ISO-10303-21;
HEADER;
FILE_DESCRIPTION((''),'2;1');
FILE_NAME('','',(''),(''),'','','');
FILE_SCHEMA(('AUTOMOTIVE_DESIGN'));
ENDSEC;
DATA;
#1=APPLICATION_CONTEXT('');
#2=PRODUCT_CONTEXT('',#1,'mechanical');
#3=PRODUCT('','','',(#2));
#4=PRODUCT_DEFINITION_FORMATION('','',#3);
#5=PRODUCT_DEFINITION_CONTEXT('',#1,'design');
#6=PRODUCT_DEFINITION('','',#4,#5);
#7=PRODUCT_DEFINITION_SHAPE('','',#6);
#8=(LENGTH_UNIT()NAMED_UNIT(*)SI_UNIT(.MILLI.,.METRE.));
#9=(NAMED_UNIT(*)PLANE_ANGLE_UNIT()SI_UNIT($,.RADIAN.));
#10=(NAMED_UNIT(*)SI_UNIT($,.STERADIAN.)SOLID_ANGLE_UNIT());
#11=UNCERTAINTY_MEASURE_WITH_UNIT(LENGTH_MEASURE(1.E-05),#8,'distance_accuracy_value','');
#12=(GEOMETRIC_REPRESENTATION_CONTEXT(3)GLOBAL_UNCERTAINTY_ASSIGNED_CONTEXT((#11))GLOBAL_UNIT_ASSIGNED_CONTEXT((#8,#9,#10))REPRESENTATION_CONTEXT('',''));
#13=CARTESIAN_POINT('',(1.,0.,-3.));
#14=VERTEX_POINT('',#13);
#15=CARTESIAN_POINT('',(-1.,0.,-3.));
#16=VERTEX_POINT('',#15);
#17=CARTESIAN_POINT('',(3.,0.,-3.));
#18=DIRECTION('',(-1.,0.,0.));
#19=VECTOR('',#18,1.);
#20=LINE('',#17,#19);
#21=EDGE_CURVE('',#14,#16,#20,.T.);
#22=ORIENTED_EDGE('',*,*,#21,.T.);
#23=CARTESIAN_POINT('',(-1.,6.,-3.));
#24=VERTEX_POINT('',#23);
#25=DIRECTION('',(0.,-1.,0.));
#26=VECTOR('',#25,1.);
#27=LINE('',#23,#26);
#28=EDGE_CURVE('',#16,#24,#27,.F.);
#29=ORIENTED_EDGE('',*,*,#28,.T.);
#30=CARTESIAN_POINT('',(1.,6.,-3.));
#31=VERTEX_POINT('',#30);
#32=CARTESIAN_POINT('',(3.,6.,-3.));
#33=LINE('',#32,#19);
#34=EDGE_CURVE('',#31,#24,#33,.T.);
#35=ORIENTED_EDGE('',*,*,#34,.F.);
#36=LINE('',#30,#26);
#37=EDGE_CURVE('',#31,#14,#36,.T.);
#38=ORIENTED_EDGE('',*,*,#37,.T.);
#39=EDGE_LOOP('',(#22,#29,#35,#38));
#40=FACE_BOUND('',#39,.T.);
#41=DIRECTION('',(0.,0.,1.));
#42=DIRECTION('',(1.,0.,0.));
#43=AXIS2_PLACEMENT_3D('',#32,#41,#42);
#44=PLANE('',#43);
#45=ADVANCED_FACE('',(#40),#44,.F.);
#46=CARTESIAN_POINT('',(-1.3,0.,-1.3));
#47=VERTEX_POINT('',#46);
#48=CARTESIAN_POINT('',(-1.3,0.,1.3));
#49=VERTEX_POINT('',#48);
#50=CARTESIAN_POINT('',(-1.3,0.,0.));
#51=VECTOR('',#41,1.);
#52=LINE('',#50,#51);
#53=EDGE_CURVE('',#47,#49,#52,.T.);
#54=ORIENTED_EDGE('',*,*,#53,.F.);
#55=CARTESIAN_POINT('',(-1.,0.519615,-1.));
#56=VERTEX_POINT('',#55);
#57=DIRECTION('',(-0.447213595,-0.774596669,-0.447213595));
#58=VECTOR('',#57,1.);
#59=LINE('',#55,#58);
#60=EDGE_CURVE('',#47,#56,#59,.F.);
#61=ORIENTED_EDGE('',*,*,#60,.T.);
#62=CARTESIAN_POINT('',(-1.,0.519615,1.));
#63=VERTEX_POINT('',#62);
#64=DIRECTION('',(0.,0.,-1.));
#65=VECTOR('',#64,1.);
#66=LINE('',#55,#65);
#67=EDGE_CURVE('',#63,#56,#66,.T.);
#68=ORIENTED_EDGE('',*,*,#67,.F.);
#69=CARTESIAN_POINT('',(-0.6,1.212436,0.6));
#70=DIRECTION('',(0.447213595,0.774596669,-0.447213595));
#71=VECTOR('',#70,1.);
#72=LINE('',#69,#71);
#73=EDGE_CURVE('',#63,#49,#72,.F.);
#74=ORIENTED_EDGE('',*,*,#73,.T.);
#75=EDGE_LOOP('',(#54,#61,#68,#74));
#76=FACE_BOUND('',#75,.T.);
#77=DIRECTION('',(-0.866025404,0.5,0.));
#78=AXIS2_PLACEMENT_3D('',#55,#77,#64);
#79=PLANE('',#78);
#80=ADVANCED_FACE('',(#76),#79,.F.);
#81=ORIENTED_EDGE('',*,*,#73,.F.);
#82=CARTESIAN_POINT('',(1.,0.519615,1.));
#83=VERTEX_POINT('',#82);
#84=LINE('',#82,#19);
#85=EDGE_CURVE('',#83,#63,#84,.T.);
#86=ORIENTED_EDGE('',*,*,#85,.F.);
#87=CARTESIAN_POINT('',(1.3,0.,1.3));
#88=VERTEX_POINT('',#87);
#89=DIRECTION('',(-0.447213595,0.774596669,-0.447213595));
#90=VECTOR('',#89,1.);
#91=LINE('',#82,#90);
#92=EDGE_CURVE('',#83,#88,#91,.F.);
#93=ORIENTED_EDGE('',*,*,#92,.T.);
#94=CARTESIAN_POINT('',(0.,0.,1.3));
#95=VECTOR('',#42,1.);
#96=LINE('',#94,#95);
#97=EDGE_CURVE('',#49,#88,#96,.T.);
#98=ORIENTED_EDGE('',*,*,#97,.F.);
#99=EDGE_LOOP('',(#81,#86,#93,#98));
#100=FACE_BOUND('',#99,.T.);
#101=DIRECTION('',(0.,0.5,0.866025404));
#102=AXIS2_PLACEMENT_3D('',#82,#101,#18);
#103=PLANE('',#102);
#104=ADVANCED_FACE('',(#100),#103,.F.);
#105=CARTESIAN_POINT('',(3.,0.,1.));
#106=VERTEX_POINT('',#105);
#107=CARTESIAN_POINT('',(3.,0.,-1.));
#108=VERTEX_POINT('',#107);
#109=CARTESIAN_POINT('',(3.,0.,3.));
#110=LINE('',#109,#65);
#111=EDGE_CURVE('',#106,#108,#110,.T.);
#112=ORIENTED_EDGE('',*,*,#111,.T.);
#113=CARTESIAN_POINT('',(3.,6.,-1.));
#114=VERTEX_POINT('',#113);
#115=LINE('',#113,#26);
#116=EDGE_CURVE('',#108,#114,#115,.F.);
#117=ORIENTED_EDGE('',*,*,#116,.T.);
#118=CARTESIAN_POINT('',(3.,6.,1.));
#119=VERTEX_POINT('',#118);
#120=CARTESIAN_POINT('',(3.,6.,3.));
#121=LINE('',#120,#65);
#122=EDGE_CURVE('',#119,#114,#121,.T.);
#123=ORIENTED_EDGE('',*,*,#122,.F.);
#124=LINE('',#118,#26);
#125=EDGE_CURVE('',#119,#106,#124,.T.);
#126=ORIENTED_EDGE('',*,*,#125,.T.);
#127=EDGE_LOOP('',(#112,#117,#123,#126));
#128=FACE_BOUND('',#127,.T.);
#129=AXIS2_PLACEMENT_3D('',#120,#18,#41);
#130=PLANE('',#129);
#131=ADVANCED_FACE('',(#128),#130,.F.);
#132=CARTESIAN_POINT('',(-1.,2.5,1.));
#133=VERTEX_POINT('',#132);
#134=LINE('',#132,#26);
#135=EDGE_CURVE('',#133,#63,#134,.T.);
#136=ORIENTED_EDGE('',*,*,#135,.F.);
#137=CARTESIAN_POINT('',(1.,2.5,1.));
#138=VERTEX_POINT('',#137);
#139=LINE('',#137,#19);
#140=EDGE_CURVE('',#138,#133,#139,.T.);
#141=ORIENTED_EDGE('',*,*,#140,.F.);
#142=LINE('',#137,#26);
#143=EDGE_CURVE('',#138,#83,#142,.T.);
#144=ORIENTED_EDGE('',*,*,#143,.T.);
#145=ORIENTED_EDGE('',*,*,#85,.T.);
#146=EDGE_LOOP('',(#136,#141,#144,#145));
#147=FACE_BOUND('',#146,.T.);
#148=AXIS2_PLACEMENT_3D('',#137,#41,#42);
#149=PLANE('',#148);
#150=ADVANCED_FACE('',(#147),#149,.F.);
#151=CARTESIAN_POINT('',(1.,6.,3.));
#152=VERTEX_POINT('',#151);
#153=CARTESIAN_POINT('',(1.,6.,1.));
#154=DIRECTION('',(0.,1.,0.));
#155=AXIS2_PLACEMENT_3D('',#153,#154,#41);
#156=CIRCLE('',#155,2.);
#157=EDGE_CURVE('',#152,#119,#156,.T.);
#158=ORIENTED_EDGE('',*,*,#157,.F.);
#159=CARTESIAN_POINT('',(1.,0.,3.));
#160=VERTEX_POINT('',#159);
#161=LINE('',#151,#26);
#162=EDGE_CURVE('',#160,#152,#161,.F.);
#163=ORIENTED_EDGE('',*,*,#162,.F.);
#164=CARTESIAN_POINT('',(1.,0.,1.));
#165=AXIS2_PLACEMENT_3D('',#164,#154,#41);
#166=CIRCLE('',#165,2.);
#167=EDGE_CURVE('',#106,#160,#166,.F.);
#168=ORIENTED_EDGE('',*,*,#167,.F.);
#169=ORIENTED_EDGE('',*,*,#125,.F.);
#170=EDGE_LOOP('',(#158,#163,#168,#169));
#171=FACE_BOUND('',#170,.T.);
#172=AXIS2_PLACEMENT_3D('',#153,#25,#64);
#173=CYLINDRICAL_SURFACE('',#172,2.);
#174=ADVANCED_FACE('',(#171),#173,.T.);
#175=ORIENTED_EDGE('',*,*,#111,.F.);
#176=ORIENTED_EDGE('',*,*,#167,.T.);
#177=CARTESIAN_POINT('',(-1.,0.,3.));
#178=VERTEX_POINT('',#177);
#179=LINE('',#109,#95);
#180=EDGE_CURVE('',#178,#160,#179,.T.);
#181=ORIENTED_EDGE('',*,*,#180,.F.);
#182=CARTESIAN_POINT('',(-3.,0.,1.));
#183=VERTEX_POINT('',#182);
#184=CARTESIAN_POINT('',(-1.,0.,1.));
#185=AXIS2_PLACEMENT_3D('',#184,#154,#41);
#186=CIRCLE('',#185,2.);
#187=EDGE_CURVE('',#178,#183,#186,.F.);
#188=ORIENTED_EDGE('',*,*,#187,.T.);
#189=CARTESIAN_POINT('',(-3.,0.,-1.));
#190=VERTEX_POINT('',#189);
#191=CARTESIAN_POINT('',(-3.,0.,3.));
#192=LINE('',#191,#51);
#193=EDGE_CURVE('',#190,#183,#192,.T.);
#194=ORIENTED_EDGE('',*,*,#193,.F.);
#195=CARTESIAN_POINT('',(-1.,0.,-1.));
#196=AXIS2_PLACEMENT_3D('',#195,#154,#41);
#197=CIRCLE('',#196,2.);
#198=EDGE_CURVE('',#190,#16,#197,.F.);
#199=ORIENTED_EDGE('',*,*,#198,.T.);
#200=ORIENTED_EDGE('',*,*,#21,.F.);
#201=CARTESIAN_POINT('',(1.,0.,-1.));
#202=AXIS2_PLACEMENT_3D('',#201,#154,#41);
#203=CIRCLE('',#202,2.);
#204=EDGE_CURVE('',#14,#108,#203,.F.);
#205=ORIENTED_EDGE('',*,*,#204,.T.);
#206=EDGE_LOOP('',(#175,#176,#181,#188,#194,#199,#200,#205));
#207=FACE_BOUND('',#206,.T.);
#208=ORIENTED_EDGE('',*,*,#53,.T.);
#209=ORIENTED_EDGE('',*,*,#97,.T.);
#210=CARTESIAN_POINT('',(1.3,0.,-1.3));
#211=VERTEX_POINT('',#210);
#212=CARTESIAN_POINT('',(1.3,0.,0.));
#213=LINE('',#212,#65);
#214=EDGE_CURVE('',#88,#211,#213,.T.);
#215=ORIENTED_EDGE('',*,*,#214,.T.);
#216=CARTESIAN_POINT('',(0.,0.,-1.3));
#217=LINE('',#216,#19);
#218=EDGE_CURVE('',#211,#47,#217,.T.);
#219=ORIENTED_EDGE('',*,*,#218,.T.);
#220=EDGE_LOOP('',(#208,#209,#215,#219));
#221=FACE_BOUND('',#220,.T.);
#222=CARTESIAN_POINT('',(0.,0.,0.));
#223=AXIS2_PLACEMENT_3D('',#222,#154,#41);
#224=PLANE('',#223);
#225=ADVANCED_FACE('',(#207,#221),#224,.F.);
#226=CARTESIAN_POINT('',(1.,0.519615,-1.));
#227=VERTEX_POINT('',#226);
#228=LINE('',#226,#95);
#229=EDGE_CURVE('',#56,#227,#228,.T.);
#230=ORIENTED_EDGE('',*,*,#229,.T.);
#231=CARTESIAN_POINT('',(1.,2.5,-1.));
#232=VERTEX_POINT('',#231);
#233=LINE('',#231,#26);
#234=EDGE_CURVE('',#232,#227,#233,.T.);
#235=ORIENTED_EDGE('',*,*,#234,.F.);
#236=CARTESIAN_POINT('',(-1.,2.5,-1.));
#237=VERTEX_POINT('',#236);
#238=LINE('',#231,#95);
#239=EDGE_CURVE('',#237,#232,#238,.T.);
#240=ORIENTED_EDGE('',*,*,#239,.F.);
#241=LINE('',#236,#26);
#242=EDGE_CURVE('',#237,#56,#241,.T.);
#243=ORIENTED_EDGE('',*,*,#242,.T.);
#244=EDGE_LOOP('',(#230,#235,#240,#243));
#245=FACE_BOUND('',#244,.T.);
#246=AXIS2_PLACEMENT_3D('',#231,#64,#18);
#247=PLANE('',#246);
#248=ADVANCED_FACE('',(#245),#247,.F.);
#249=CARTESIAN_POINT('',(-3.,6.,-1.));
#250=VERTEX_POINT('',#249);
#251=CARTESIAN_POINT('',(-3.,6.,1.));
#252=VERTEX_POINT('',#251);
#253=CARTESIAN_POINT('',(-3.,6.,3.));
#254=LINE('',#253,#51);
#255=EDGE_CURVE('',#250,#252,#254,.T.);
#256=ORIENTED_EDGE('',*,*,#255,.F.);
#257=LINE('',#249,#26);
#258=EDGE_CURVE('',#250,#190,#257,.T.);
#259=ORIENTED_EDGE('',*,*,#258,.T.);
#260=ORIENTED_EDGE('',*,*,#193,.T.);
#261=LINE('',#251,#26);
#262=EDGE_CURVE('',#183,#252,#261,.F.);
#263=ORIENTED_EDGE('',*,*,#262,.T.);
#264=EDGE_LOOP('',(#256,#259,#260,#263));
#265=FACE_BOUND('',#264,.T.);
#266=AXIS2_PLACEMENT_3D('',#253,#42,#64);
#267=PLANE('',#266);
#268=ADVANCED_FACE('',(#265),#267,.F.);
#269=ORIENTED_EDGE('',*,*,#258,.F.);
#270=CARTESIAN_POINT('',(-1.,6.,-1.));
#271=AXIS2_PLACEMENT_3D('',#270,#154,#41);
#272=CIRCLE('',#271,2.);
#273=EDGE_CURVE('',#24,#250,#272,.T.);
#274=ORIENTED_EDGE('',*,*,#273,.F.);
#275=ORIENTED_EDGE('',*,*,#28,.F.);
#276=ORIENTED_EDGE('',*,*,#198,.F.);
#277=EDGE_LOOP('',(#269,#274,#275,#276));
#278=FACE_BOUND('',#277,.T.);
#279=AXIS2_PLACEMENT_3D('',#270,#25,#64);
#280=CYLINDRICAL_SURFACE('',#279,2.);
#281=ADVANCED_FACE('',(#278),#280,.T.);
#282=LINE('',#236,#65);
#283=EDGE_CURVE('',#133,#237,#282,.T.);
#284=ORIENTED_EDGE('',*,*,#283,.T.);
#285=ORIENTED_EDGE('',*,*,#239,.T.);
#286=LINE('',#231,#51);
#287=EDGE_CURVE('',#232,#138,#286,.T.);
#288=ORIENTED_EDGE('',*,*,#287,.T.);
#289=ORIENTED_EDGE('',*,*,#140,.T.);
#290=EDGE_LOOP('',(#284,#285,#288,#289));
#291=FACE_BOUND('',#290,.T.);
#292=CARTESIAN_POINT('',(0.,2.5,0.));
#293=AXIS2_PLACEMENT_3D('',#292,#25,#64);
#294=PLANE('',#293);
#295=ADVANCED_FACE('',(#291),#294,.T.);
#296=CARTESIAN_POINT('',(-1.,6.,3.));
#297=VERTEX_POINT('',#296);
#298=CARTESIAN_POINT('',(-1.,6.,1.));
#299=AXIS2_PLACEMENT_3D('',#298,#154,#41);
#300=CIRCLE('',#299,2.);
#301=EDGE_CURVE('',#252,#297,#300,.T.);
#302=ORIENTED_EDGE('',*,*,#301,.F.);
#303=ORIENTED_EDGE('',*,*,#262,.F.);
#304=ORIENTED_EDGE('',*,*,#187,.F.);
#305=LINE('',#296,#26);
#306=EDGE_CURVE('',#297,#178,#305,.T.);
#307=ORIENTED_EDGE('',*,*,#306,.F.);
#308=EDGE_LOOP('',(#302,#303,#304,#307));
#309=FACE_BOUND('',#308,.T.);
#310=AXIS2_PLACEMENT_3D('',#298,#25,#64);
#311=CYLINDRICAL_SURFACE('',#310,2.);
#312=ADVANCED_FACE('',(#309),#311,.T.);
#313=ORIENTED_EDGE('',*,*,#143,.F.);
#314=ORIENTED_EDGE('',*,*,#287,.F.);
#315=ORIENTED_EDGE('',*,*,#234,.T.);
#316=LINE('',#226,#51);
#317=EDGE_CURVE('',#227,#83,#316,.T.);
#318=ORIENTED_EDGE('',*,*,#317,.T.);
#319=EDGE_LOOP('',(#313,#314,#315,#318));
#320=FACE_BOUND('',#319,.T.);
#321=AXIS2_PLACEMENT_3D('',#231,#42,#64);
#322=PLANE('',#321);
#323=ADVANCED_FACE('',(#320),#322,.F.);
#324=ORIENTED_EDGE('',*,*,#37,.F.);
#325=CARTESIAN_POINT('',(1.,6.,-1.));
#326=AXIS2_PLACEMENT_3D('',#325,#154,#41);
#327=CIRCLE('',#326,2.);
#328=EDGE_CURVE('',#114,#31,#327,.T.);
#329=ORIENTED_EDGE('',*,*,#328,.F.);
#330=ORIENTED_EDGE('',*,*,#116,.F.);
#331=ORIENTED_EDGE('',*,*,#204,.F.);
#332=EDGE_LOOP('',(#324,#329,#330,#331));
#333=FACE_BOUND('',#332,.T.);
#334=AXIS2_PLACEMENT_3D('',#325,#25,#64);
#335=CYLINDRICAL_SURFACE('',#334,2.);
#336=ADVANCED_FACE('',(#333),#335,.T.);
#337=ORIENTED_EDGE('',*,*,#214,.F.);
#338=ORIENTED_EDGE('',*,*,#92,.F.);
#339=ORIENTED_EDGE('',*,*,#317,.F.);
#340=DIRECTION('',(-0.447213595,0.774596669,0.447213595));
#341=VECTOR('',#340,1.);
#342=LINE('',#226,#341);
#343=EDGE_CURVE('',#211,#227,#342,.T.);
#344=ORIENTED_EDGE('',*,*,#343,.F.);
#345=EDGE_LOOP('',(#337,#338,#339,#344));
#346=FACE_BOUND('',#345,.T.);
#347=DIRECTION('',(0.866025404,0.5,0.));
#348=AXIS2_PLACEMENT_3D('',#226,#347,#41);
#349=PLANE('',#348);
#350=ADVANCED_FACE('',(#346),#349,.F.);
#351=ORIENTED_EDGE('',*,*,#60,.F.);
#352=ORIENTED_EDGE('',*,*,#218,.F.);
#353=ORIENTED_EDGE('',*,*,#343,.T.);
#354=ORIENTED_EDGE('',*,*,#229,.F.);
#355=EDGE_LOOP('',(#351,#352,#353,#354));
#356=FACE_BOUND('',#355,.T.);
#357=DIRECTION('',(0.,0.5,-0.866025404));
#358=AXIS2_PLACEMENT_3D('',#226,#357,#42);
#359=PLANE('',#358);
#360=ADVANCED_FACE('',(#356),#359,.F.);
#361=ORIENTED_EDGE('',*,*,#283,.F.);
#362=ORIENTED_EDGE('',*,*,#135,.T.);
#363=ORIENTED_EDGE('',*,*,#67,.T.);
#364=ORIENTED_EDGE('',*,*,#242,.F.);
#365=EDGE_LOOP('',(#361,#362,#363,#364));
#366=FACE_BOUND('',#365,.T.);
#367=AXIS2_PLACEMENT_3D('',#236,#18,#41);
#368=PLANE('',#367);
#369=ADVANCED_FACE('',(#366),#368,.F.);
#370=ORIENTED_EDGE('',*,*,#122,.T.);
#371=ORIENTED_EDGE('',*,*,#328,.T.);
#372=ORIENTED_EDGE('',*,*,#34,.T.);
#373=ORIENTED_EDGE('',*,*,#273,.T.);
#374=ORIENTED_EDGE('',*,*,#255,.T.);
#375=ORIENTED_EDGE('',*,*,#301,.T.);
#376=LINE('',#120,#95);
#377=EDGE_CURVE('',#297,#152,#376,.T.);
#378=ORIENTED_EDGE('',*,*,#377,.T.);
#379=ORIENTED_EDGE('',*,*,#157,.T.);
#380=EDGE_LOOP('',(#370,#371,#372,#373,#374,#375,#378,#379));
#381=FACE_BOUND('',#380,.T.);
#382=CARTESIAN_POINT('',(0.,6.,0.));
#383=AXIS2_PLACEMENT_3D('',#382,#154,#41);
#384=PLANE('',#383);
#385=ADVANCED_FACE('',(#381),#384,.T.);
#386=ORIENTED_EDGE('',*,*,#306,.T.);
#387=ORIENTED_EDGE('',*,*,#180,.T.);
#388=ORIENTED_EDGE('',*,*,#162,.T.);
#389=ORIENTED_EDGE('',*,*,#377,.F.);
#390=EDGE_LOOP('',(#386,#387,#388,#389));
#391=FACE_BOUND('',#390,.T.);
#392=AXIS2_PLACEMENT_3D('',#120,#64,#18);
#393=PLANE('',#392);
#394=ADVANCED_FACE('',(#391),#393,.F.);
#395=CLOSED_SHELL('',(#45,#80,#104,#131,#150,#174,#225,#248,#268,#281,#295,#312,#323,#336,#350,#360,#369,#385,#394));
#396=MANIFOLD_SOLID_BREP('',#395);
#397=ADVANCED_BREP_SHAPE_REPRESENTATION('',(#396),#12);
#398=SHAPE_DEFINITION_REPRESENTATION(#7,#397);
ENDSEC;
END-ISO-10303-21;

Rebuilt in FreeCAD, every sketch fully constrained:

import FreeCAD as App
import Part
import Sketcher


def edges_at(feature, points):
    """Names of the edges that pass closest to the given points."""
    edges = feature.Shape.Edges
    near = lambda p: min(range(len(edges)), key=lambda i: edges[i].distToShape(Part.Vertex(*p))[0])
    return sorted({f"Edge{near(p) + 1}" for p in points})


def add_polygon(sketch, points):
    """Adds a closed chain of lines whose ends are joined by coincident constraints."""
    first, n = sketch.GeometryCount, len(points)
    for a, b in zip(points, points[1:] + points[:1]):
        sketch.addGeometry(Part.LineSegment(App.Vector(*a, 0), App.Vector(*b, 0)), False)
    for i in range(n):
        sketch.addConstraint(Sketcher.Constraint("Coincident", first + i, 2, first + (i + 1) % n, 1))

doc = App.newDocument("Part")
params = doc.addObject("Spreadsheet::Sheet", "Params")
for row, (alias, value) in enumerate([
    ("sketch1_width", "6 mm"),
    ("pad1_length", "6 mm"),
    ("sketch2_width", "2 mm"),
    ("pocket1_length", "2.5 mm"),
    ("fillet_radius", "2 mm"),
    ("chamfer_size", "0.3 mm"),
    ("chamfer_size2", "0.519615 mm"),
], start=1):
    params.set(f"A{row}", alias)
    params.set(f"B{row}", "=" + value)
    params.setAlias(f"B{row}", alias)

body = doc.addObject("PartDesign::Body", "Body")

sketch1 = doc.addObject("Sketcher::SketchObject", "Sketch")
body.addObject(sketch1)
sketch1.AttachmentSupport = (doc.XZ_Plane, [""])
sketch1.MapMode = "FlatFace"
add_polygon(sketch1, [(-3, -3), (-3, 3), (3, 3), (3, -3)])
sketch1.addConstraint([
    Sketcher.Constraint("Vertical", 0),
    Sketcher.Constraint("Horizontal", 1),
    Sketcher.Constraint("Vertical", 2),
    Sketcher.Constraint("Horizontal", 3),
    Sketcher.Constraint("Symmetric", 0, 2, 2, 2, -1, 1),
    Sketcher.Constraint("Equal", 3, 0),
    Sketcher.Constraint("DistanceX", 1, 1, 1, 2, 6.0),
])
sketch1.setExpression("Constraints[10]", "Params.sketch1_width")
pad1 = doc.addObject("PartDesign::Pad", "Pad")
body.addObject(pad1)
pad1.Profile = sketch1
pad1.setExpression("Length", "Params.pad1_length")
pad1.Reversed = True

sketch2 = doc.addObject("Sketcher::SketchObject", "Sketch001")
body.addObject(sketch2)
sketch2.AttachmentSupport = (doc.XZ_Plane, [""])
sketch2.MapMode = "FlatFace"
add_polygon(sketch2, [(-1, 1), (-1, -1), (1, -1), (1, 1)])
sketch2.addConstraint([
    Sketcher.Constraint("Vertical", 0),
    Sketcher.Constraint("Horizontal", 1),
    Sketcher.Constraint("Vertical", 2),
    Sketcher.Constraint("Horizontal", 3),
    Sketcher.Constraint("Symmetric", 0, 2, 2, 2, -1, 1),
    Sketcher.Constraint("Equal", 3, 0),
    Sketcher.Constraint("DistanceX", 1, 1, 1, 2, 2.0),
])
sketch2.setExpression("Constraints[10]", "Params.sketch2_width")
pocket1 = doc.addObject("PartDesign::Pocket", "Pocket")
body.addObject(pocket1)
pocket1.Profile = sketch2
pocket1.setExpression("Length", "Params.pocket1_length")
doc.recompute()

fillet = doc.addObject("PartDesign::Fillet", "Fillet")
body.addObject(fillet)
fillet.Base = (pocket1, edges_at(pocket1, [
    (-3, 3, -3),
    (3, 3, -3),
    (3, 3, 3),
    (-3, 3, 3),
]))
fillet.setExpression("Radius", "Params.fillet_radius")
doc.recompute()

chamfer = doc.addObject("PartDesign::Chamfer", "Chamfer")
body.addObject(chamfer)
chamfer.Base = (fillet, edges_at(fillet, [
    (-1, 0, 0),
    (0, 0, -1),
    (1, 0, 0),
    (0, 0, 1),
]))
chamfer.ChamferType = "Two distances"
chamfer.setExpression("Size", "Params.chamfer_size")
chamfer.setExpression("Size2", "Params.chamfer_size2")

doc.recompute()
